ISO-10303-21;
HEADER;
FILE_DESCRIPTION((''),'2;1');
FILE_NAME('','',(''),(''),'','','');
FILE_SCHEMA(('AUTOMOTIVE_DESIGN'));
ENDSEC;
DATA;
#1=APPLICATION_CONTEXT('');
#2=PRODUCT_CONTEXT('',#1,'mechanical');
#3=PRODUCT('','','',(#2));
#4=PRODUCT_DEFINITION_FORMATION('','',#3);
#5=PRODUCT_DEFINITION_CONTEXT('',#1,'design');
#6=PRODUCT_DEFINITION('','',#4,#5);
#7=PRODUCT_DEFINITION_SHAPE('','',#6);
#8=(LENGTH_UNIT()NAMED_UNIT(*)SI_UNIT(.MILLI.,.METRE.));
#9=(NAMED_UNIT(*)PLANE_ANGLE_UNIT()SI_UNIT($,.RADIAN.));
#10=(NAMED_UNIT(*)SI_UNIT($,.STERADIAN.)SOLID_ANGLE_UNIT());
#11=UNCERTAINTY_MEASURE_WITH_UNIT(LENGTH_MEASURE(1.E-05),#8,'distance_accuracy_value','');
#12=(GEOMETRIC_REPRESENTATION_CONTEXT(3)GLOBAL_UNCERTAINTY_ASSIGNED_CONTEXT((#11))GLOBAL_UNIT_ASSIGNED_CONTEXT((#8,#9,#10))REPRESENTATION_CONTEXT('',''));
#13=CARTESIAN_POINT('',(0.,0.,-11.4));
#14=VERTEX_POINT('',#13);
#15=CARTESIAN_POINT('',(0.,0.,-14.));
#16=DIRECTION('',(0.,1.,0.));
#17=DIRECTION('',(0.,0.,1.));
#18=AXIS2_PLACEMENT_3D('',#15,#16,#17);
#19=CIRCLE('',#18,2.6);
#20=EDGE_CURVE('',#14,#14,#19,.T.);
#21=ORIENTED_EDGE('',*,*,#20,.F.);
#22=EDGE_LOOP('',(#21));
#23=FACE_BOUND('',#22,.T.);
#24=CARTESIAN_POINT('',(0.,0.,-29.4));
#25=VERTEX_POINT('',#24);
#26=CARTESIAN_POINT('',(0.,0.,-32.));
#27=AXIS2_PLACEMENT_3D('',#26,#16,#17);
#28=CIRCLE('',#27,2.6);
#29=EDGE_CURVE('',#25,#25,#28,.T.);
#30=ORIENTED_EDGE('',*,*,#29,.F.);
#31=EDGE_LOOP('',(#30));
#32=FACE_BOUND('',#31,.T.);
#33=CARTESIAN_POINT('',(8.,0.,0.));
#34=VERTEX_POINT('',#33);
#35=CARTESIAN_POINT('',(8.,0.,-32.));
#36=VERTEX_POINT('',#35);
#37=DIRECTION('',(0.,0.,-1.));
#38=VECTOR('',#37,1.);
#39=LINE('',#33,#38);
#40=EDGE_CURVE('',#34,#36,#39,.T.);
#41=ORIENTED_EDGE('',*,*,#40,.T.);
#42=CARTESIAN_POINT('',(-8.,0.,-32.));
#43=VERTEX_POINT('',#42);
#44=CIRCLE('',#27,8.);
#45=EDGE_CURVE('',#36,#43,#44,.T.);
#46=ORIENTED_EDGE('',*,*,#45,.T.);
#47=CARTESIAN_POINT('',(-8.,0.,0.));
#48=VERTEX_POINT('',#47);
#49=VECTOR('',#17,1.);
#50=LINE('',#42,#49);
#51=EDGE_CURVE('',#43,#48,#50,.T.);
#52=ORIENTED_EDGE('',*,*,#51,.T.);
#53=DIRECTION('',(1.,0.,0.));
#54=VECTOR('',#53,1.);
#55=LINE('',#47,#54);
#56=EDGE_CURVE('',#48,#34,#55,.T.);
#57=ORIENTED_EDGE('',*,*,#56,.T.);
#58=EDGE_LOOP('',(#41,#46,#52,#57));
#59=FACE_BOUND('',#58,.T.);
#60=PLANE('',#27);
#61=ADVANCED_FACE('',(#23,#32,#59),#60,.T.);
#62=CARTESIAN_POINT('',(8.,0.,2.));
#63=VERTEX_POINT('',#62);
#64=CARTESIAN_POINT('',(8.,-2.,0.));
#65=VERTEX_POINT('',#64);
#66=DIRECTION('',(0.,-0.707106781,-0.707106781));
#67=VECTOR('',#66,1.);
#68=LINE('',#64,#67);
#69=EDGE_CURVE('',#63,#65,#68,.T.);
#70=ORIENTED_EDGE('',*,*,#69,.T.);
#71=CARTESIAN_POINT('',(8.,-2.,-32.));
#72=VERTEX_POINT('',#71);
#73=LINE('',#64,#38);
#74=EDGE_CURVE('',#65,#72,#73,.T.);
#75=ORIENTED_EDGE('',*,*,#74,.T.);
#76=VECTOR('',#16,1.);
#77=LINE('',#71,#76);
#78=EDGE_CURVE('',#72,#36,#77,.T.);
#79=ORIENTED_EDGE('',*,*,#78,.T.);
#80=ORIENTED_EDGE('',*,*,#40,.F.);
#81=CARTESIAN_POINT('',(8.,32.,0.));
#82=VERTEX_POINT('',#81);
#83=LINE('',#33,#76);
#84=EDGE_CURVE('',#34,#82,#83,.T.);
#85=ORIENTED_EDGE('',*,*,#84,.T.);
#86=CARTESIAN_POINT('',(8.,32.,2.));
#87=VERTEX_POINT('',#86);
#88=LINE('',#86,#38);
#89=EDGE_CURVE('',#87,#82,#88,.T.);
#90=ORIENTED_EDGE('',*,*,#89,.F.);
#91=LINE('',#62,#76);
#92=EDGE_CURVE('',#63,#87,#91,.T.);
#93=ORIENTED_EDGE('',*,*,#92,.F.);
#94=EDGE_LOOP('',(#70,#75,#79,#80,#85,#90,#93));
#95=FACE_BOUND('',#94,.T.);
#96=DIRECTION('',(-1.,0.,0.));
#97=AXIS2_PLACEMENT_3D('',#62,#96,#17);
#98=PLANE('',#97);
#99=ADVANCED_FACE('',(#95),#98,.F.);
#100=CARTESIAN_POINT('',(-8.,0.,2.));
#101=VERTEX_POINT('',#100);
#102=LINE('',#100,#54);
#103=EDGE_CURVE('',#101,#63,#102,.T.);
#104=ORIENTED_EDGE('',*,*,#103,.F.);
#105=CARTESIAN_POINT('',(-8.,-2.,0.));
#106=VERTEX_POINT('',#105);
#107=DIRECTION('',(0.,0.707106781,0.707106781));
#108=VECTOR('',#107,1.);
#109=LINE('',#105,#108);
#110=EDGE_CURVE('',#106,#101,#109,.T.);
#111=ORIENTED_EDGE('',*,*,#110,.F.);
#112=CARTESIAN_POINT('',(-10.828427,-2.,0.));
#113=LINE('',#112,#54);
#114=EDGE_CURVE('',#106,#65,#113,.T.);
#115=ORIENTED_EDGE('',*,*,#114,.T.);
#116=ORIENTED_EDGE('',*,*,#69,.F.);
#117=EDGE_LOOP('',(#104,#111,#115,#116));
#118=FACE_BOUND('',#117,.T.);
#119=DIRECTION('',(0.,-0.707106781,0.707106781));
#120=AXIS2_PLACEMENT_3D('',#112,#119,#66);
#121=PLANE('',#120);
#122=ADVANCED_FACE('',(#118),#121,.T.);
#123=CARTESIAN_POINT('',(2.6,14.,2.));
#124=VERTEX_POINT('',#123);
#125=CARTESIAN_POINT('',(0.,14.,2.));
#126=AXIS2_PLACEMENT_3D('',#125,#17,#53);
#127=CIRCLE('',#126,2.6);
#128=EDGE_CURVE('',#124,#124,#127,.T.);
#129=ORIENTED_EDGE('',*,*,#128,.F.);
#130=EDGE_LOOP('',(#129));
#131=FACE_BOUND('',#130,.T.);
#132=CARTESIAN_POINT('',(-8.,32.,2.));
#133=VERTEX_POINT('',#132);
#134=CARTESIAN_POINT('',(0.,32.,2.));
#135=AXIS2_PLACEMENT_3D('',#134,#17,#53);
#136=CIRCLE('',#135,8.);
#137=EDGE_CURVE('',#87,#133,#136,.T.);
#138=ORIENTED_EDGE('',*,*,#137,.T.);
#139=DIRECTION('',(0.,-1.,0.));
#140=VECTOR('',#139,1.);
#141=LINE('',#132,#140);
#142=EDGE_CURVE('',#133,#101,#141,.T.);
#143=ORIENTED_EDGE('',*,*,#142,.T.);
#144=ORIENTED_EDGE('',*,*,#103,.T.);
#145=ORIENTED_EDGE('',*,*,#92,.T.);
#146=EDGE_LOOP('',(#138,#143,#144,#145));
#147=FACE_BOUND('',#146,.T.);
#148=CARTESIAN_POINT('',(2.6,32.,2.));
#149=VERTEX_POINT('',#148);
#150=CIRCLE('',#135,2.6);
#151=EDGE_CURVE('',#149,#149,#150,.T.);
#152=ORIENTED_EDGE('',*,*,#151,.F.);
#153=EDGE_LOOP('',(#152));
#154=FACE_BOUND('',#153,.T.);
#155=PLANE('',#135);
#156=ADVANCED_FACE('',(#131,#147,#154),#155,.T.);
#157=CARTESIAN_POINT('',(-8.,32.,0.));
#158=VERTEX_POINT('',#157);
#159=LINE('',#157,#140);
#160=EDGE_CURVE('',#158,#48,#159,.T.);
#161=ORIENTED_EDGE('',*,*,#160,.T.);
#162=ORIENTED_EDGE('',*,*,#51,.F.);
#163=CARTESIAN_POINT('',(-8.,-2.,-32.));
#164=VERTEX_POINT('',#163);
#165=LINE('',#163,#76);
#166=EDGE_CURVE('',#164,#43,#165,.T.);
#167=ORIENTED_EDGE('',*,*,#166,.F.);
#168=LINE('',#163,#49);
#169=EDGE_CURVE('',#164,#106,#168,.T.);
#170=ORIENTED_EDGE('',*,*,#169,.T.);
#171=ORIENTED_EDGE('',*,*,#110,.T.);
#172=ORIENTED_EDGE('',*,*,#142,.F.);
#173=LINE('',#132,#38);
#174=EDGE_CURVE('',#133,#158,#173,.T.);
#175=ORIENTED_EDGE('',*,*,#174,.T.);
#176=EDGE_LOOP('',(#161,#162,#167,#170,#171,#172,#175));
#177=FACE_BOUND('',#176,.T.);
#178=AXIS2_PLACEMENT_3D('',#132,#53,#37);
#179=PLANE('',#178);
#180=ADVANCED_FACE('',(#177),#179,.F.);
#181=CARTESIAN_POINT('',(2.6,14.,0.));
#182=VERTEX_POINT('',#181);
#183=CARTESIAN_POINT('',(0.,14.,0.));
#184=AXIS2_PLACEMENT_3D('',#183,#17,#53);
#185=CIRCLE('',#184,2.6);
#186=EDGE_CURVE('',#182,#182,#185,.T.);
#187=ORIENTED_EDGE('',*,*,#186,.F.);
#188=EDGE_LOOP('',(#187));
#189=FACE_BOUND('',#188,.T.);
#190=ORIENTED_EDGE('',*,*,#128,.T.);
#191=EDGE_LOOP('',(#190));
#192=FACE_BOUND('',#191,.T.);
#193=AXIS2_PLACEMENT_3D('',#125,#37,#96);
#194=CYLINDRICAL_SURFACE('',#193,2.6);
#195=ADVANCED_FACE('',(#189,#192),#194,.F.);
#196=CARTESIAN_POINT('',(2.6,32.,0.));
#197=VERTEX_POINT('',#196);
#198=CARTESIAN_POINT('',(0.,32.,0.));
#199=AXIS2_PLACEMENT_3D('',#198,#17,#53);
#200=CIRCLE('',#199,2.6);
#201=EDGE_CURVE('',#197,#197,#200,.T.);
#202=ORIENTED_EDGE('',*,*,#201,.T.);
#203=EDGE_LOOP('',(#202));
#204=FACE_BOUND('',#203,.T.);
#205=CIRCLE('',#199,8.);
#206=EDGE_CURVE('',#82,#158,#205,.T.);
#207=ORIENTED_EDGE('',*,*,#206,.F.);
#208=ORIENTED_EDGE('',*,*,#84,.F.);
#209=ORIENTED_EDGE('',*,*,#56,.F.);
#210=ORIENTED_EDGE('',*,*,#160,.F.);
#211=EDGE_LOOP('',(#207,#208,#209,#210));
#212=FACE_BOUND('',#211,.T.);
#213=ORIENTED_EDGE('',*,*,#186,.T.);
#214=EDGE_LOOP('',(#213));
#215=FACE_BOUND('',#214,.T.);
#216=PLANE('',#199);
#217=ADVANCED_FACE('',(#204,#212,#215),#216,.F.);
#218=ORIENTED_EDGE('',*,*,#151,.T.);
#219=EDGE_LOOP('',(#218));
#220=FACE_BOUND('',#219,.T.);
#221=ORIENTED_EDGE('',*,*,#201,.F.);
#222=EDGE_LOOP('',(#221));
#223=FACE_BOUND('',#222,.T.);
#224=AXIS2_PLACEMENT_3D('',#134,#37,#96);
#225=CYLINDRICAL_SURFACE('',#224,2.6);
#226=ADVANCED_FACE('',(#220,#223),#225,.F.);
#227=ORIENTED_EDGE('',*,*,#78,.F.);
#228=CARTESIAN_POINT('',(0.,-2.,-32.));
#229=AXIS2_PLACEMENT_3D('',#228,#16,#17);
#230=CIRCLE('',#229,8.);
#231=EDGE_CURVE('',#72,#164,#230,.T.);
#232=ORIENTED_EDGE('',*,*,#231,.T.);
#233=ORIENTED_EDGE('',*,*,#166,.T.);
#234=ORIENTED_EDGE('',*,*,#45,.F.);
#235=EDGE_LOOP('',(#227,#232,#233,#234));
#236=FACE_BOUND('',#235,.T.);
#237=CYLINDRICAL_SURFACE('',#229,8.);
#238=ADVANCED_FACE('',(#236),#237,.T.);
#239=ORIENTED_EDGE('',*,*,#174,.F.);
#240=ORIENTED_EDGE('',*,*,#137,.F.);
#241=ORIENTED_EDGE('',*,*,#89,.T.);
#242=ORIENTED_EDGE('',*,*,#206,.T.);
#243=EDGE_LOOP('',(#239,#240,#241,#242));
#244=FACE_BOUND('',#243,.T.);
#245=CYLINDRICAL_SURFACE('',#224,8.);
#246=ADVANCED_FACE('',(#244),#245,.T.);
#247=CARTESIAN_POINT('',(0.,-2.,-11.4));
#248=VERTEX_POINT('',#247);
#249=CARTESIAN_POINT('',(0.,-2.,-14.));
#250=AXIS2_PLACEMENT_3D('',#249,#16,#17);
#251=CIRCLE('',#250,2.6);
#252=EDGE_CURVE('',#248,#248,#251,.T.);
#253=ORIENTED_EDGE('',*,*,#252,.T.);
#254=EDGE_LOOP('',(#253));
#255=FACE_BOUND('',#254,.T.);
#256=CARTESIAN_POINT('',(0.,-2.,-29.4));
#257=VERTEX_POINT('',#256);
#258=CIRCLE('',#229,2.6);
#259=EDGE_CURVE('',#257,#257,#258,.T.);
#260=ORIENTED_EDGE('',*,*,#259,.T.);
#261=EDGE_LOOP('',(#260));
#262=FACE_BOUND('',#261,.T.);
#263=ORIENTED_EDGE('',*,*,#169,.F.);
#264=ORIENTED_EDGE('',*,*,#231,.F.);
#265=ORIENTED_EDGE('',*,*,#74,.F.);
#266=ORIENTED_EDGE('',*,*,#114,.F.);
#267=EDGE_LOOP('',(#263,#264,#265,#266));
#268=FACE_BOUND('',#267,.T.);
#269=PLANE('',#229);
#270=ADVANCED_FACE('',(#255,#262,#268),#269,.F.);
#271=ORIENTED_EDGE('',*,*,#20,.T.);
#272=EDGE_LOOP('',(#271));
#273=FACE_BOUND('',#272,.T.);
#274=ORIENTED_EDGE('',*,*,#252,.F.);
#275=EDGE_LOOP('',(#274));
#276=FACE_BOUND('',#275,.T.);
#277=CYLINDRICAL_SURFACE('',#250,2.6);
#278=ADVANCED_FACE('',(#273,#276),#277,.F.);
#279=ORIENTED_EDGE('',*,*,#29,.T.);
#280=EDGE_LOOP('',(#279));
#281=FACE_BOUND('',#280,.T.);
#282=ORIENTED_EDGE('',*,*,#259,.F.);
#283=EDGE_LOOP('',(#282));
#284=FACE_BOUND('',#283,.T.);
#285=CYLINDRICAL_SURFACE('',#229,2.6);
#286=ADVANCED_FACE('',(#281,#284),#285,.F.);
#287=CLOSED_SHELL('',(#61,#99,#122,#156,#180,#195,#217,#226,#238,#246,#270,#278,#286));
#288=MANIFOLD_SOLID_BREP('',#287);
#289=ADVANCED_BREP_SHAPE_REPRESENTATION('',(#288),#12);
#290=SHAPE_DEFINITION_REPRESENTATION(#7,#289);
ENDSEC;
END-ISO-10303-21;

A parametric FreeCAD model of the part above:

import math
import FreeCAD as App
import Part
import Sketcher

V = App.Vector

doc = App.newDocument("Part")
body = doc.addObject("PartDesign::Body", "Body")

sketch1 = body.newObject("Sketcher::SketchObject", "Sketch")
sketch1.AttachmentSupport = (doc.getObject("XY_Plane"), [""])
sketch1.MapMode = "FlatFace"
sketch1.addGeometry(Part.LineSegment(V(-8, 32, 0), V(-8, 0, 0)), False)
sketch1.addGeometry(Part.LineSegment(V(-8, 0, 0), V(8, 0, 0)), False)
sketch1.addGeometry(Part.LineSegment(V(8, 0, 0), V(8, 32, 0)), False)
sketch1.addGeometry(Part.ArcOfCircle(Part.Circle(V(0, 32, 0), V(0, 0, 1), 8), math.radians(0), math.radians(180)), False)
sketch1.addGeometry(Part.Circle(V(0, 14, 0), V(0, 0, 1), 2.6), False)
sketch1.addGeometry(Part.Circle(V(0, 32, 0), V(0, 0, 1), 2.6), False)
sketch1.addConstraint(Sketcher.Constraint("Coincident", 0, 2, 1, 1))
sketch1.addConstraint(Sketcher.Constraint("Coincident", 1, 2, 2, 1))
sketch1.addConstraint(Sketcher.Constraint("Tangent", 2, 2, 3, 1))
sketch1.addConstraint(Sketcher.Constraint("Tangent", 3, 2, 0, 1))
sketch1.addConstraint(Sketcher.Constraint("Vertical", 0))
sketch1.addConstraint(Sketcher.Constraint("Horizontal", 1))
sketch1.addConstraint(Sketcher.Constraint("Vertical", 2))
sketch1.addConstraint(Sketcher.Constraint("Coincident", 5, 3, 3, 3))
sketch1.addConstraint(Sketcher.Constraint("Equal", 4, 5))
sketch1.addConstraint(Sketcher.Constraint("Symmetric", 0, 2, 1, 2, -1, 1))
sketch1.addConstraint(Sketcher.Constraint("PointOnObject", 4, 3, -2))
sketch1.addConstraint(Sketcher.Constraint("Radius", 3, 8.0))
sketch1.addConstraint(Sketcher.Constraint("Diameter", 4, 5.2))
sketch1.addConstraint(Sketcher.Constraint("DistanceY", 0, 2, 0, 1, 32.0))
sketch1.addConstraint(Sketcher.Constraint("DistanceY", -1, 1, 4, 3, 14.0))
pad1 = body.newObject("PartDesign::Pad", "Pad")
pad1.Profile = sketch1
pad1.Length = 2
body2 = doc.addObject("PartDesign::Body", "Body001")

sketch2 = body2.newObject("Sketcher::SketchObject", "Sketch001")
sketch2.AttachmentSupport = (doc.getObject("XZ_Plane001"), [""])
sketch2.MapMode = "FlatFace"
sketch2.addGeometry(Part.LineSegment(V(-8, -32, 0), V(-8, 0, 0)), False)
sketch2.addGeometry(Part.LineSegment(V(-8, 0, 0), V(8, 0, 0)), False)
sketch2.addGeometry(Part.LineSegment(V(8, 0, 0), V(8, -32, 0)), False)
sketch2.addGeometry(Part.ArcOfCircle(Part.Circle(V(0, -32, 0), V(0, 0, 1), 8), math.radians(180), math.radians(360)), False)
sketch2.addGeometry(Part.Circle(V(0, -14, 0), V(0, 0, 1), 2.6), False)
sketch2.addGeometry(Part.Circle(V(0, -32, 0), V(0, 0, 1), 2.6), False)
sketch2.addConstraint(Sketcher.Constraint("Coincident", 0, 2, 1, 1))
sketch2.addConstraint(Sketcher.Constraint("Coincident", 1, 2, 2, 1))
sketch2.addConstraint(Sketcher.Constraint("Tangent", 2, 2, 3, 2))
sketch2.addConstraint(Sketcher.Constraint("Tangent", 3, 1, 0, 1))
sketch2.addConstraint(Sketcher.Constraint("Vertical", 0))
sketch2.addConstraint(Sketcher.Constraint("Horizontal", 1))
sketch2.addConstraint(Sketcher.Constraint("Vertical", 2))
sketch2.addConstraint(Sketcher.Constraint("Coincident", 5, 3, 3, 3))
sketch2.addConstraint(Sketcher.Constraint("Equal", 4, 5))
sketch2.addConstraint(Sketcher.Constraint("Symmetric", 0, 2, 1, 2, -1, 1))
sketch2.addConstraint(Sketcher.Constraint("PointOnObject", 4, 3, -2))
sketch2.addConstraint(Sketcher.Constraint("Radius", 3, 8.0))
sketch2.addConstraint(Sketcher.Constraint("Diameter", 4, 5.2))
sketch2.addConstraint(Sketcher.Constraint("DistanceY", 0, 1, 0, 2, 32.0))
sketch2.addConstraint(Sketcher.Constraint("DistanceY", 4, 3, -1, 1, 14.0))
pad2 = body2.newObject("PartDesign::Pad", "Pad001")
pad2.Profile = sketch2
pad2.Length = 2
body.AllowCompound = True
doc.recompute()

boolean = body.newObject("PartDesign::Boolean", "Boolean")
boolean.Type = "Fuse"
boolean.addObjects([body2])

sketch3 = body.newObject("Sketcher::SketchObject", "Sketch002")
sketch3.AttachmentSupport = (doc.getObject("YZ_Plane"), [""])
sketch3.MapMode = "FlatFace"
sketch3.AttachmentOffset = App.Placement(V(0, 0, 8), App.Rotation())
sketch3.addGeometry(Part.LineSegment(V(-2, 0, 0), V(0, 0, 0)), False)
sketch3.addGeometry(Part.LineSegment(V(0, 0, 0), V(0, 2, 0)), False)
sketch3.addGeometry(Part.LineSegment(V(0, 2, 0), V(-2, 0, 0)), False)
sketch3.addConstraint(Sketcher.Constraint("Coincident", 0, 2, 1, 1))
sketch3.addConstraint(Sketcher.Constraint("Coincident", 1, 2, 2, 1))
sketch3.addConstraint(Sketcher.Constraint("Coincident", 2, 2, 0, 1))
sketch3.addConstraint(Sketcher.Constraint("Horizontal", 0))
sketch3.addConstraint(Sketcher.Constraint("Vertical", 1))
sketch3.addConstraint(Sketcher.Constraint("Coincident", 0, 2, -1, 1))
sketch3.addConstraint(Sketcher.Constraint("Equal", 0, 1))
sketch3.addConstraint(Sketcher.Constraint("DistanceX", 0, 1, 0, 2, 2.0))
pad3 = body.newObject("PartDesign::Pad", "Pad002")
pad3.Profile = sketch3
pad3.Length = 16
pad3.Reversed = True

doc.recompute()
